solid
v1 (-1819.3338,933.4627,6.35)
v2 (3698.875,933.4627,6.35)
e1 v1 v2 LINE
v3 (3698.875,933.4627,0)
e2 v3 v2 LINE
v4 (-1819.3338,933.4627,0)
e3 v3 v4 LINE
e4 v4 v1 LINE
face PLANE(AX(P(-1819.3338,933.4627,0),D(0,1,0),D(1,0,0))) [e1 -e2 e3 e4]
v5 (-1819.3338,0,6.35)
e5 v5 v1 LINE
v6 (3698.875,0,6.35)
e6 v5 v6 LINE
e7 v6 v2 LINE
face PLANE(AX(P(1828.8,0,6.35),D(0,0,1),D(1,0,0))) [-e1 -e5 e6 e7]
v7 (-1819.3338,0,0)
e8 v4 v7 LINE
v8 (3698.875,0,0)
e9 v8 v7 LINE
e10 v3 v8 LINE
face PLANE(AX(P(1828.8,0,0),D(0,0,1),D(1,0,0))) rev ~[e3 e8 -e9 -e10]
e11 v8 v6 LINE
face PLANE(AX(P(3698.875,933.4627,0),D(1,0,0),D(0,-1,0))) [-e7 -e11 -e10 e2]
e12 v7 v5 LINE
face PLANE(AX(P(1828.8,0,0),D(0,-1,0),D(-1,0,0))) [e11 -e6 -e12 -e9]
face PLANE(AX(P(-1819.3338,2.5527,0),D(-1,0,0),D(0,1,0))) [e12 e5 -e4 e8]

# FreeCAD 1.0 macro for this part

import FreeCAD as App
import Part
import Sketcher

V = App.Vector
Q = App.Units.Quantity


def add_polygon(sketch, points):
    """Adds a closed chain of lines whose ends are joined by coincident constraints."""
    first, n = sketch.GeometryCount, len(points)
    for a, b in zip(points, points[1:] + points[:1]):
        sketch.addGeometry(Part.LineSegment(App.Vector(*a, 0), App.Vector(*b, 0)), False)
    for i in range(n):
        sketch.addConstraint(Sketcher.Constraint("Coincident", first + i, 2, first + (i + 1) % n, 1))

doc = App.newDocument("Part")
body = doc.addObject("PartDesign::Body", "Body")

# Sketch on XY plane
sketch1 = doc.addObject("Sketcher::SketchObject", "Sketch")
body.addObject(sketch1)
sketch1.AttachmentSupport = (doc.XY_Plane, [""])
sketch1.MapMode = "FlatFace"
add_polygon(sketch1, [(-1819, 933), (-1819, 0), (3699, 0), (3699, 933)])  # lines 0-3
sketch1.addConstraint([
    Sketcher.Constraint("Vertical", 0),
    Sketcher.Constraint("Horizontal", 1),
    Sketcher.Constraint("Vertical", 2),
    Sketcher.Constraint("Horizontal", 3),
    Sketcher.Constraint("PointOnObject", 0, 2, -1),
    Sketcher.Constraint("DistanceY", 0, 2, 0, 1, Q("36.7505 in")),
    Sketcher.Constraint("DistanceX", -1, 1, 1, 2, Q("145.625 in")),
    Sketcher.Constraint("DistanceX", 1, 1, 1, 2, Q("5518.2088 mm")),
])
pad1 = doc.addObject("PartDesign::Pad", "Pad")
body.addObject(pad1)
pad1.Profile = sketch1
pad1.Length = Q("0.25 in")

doc.recompute()
